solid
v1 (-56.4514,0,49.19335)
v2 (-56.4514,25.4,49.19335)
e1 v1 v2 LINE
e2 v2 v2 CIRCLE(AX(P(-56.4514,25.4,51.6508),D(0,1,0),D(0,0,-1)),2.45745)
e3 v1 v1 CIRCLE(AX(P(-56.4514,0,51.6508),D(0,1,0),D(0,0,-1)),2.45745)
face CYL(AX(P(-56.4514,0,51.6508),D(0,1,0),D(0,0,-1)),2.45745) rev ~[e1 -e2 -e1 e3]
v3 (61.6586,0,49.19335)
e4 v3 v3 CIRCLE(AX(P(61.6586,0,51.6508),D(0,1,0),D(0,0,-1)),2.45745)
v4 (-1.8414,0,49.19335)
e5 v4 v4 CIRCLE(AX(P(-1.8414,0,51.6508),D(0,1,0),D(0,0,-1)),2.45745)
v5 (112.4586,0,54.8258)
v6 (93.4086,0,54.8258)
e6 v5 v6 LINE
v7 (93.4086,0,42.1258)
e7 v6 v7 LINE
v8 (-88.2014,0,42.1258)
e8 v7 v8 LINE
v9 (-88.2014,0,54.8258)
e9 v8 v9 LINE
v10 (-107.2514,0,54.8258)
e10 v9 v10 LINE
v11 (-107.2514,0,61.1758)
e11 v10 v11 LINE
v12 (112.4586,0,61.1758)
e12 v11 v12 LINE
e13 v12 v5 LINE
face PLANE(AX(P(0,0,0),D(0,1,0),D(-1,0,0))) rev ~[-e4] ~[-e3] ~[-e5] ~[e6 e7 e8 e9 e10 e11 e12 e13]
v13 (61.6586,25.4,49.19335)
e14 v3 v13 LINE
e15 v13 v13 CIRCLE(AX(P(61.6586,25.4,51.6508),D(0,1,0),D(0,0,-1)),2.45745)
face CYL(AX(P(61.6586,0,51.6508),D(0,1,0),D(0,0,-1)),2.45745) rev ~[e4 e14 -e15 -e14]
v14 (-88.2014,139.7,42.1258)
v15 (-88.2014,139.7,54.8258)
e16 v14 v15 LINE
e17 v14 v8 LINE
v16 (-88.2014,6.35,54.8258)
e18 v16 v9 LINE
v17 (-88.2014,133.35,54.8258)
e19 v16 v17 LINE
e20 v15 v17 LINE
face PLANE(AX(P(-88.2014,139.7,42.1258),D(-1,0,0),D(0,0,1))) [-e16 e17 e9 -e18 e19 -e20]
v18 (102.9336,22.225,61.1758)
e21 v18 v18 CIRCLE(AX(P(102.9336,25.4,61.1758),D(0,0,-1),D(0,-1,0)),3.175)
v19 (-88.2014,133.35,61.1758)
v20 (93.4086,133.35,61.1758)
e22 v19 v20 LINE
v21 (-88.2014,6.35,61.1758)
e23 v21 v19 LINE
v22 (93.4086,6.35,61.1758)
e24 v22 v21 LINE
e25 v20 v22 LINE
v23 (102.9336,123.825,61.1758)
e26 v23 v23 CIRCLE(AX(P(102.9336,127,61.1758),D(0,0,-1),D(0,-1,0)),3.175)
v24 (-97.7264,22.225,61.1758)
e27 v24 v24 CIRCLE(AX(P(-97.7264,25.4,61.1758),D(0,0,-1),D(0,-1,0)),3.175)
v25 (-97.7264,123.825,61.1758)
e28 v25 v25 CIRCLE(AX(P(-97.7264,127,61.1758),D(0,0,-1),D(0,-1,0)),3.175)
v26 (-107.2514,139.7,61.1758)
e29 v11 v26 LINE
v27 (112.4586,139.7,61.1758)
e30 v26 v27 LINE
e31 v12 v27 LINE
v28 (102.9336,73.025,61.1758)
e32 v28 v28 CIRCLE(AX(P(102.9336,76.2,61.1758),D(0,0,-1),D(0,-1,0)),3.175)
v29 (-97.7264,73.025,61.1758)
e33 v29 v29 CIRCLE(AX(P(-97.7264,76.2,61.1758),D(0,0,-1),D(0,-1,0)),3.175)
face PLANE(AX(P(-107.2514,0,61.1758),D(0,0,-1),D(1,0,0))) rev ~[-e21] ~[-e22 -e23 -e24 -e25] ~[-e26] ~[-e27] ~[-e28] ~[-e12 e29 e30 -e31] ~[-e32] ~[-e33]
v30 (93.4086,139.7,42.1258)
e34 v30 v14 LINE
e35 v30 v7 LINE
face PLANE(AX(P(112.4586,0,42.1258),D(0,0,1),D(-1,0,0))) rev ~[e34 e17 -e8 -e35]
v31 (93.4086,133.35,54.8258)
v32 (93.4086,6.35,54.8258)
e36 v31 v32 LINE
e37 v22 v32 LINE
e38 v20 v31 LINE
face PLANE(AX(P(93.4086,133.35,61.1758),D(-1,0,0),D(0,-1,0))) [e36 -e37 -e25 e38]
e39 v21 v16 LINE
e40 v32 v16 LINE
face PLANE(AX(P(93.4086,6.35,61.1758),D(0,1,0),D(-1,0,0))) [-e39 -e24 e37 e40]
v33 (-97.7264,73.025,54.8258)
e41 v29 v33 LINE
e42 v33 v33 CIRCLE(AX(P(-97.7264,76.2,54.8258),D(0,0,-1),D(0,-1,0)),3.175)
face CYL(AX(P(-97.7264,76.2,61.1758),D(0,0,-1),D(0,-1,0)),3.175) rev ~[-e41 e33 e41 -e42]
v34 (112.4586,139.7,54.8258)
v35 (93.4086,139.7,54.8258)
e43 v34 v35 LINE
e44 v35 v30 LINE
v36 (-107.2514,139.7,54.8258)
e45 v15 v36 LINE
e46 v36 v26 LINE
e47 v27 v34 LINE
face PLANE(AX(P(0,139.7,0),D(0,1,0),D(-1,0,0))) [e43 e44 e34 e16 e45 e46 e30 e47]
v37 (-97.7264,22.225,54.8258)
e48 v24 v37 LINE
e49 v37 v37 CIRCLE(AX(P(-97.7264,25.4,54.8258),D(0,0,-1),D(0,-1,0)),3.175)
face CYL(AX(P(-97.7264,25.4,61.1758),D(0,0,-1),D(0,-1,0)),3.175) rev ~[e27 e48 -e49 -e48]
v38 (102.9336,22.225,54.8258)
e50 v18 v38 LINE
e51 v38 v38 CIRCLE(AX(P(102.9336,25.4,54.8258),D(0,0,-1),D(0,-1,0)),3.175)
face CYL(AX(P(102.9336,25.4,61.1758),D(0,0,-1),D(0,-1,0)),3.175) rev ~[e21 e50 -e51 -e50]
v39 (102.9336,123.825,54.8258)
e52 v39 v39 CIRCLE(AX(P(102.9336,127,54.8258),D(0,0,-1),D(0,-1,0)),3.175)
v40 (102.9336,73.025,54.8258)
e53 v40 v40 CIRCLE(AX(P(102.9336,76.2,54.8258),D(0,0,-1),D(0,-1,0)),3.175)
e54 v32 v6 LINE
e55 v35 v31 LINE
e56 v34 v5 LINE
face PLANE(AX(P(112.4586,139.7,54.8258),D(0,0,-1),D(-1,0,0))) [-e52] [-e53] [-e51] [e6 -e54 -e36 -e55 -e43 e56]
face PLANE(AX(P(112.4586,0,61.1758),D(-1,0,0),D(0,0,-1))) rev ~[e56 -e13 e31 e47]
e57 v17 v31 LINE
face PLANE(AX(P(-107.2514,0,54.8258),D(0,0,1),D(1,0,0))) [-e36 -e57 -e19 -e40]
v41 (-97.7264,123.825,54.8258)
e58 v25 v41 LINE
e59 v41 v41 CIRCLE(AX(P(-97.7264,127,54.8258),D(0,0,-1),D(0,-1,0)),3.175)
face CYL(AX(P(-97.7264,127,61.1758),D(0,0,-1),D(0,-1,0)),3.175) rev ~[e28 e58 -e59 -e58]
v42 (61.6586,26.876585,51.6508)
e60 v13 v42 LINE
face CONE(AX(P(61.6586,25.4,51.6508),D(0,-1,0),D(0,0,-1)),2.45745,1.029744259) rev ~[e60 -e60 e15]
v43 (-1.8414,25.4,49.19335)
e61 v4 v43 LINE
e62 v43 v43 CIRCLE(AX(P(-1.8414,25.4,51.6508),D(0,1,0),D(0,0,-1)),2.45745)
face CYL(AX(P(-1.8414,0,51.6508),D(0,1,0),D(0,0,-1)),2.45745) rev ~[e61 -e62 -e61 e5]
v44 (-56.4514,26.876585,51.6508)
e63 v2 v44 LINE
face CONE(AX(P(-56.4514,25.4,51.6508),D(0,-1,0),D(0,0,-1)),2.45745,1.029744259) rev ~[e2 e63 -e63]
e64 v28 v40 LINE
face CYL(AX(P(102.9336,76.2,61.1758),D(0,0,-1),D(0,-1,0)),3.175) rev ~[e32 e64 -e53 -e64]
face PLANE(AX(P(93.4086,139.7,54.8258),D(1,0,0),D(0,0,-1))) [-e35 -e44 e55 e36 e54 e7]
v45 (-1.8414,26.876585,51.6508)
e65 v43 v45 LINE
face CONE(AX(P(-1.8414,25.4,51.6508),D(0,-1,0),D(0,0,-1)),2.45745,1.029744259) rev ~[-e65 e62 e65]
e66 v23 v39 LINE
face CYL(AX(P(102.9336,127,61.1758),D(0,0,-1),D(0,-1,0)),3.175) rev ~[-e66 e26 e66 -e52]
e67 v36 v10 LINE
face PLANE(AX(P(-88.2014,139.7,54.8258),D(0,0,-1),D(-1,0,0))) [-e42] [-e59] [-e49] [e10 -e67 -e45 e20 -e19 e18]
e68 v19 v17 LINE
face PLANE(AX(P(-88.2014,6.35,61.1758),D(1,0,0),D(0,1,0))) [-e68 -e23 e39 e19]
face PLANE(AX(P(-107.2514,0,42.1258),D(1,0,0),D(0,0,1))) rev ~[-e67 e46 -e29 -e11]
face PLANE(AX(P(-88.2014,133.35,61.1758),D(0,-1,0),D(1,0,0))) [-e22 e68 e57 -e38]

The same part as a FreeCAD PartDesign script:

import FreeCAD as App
import Part
import Sketcher
Q = App.Units.Quantity


def add_polygon(sketch, points):
    """Adds a closed chain of lines whose ends are joined by coincident constraints."""
    first, n = sketch.GeometryCount, len(points)
    for a, b in zip(points, points[1:] + points[:1]):
        sketch.addGeometry(Part.LineSegment(App.Vector(*a, 0), App.Vector(*b, 0)), False)
    for i in range(n):
        sketch.addConstraint(Sketcher.Constraint("Coincident", first + i, 2, first + (i + 1) % n, 1))

doc = App.newDocument("Part")
body = doc.addObject("PartDesign::Body", "Body")

# Sketch on XZ plane
sketch1 = body.newObject("Sketcher::SketchObject", "Sketch")
sketch1.AttachmentSupport = (doc.getObject("XZ_Plane"), [""])
sketch1.MapMode = "FlatFace"
add_polygon(sketch1, [(-107, 42), (-107, 61), (112, 61), (112, 42)])  # lines 0-3
sketch1.addConstraint(Sketcher.Constraint("Vertical", 0))
sketch1.addConstraint(Sketcher.Constraint("Horizontal", 1))
sketch1.addConstraint(Sketcher.Constraint("Vertical", 2))
sketch1.addConstraint(Sketcher.Constraint("Horizontal", 3))
sketch1.addConstraint(Sketcher.Constraint("DistanceX", 1, 1, 1, 2, Q("8.65 in")))
sketch1.addConstraint(Sketcher.Constraint("DistanceY", 0, 1, 0, 2, Q("0.75 in")))
sketch1.addConstraint(Sketcher.Constraint("DistanceX", 0, 2, -1, 1, Q("4.2225 in")))
sketch1.addConstraint(Sketcher.Constraint("DistanceY", -1, 1, 0, 2, Q("2.4085 in")))
pad1 = body.newObject("PartDesign::Pad", "Pad")
pad1.Profile = sketch1
pad1.Length = Q("5.5 in")
pad1.Reversed = True

# Sketch on XY plane
sketch2 = body.newObject("Sketcher::SketchObject", "Sketch001")
sketch2.AttachmentSupport = (doc.getObject("XY_Plane"), [""])
sketch2.MapMode = "FlatFace"
sketch2.AttachmentOffset = App.Placement(App.Vector(0, 0, 2.4084961 * 25.4), App.Rotation())
sketch2.addGeometry(Part.Circle(App.Vector(-97.7, 76.2, 0), App.Vector(0, 0, 1), 3.2), False)
sketch2.addGeometry(Part.Circle(App.Vector(-97.7, 25.4, 0), App.Vector(0, 0, 1), 3.2), False)
sketch2.addGeometry(Part.Circle(App.Vector(102.9, 25.4, 0), App.Vector(0, 0, 1), 3.2), False)
sketch2.addGeometry(Part.Circle(App.Vector(102.9, 76.2, 0), App.Vector(0, 0, 1), 3.2), False)
sketch2.addConstraint(Sketcher.Constraint("Equal", 0, 1))
sketch2.addConstraint(Sketcher.Constraint("Equal", 1, 2))
sketch2.addConstraint(Sketcher.Constraint("Equal", 2, 3))
sketch2.addConstraint(Sketcher.Constraint("Horizontal", 1, 3, 2, 3))
sketch2.addConstraint(Sketcher.Constraint("Horizontal", 0, 3, 3, 3))
sketch2.addConstraint(Sketcher.Constraint("Vertical", 0, 3, 1, 3))
sketch2.addConstraint(Sketcher.Constraint("Vertical", 2, 3, 3, 3))
sketch2.addConstraint(Sketcher.Constraint("Diameter", 0, Q("0.25 in")))
sketch2.addConstraint(Sketcher.Constraint("DistanceY", -1, 1, 0, 3, Q("3 in")))
sketch2.addConstraint(Sketcher.Constraint("DistanceY", -1, 1, 1, 3, Q("1 in")))
sketch2.addConstraint(Sketcher.Constraint("DistanceX", 1, 3, 2, 3, Q("7.9 in")))
sketch2.addConstraint(Sketcher.Constraint("DistanceX", 0, 3, -1, 1, Q("3.8475 in")))
doc.recompute()
hole = body.newObject("PartDesign::Hole", "Hole")
hole.Profile = sketch2
hole.ThreadType = "None"
hole.Diameter = Q("0.25 in")
hole.DepthType = "ThroughAll"

# Sketch on XY plane
sketch3 = body.newObject("Sketcher::SketchObject", "Sketch002")
sketch3.AttachmentSupport = (doc.getObject("XY_Plane"), [""])
sketch3.MapMode = "FlatFace"
sketch3.AttachmentOffset = App.Placement(App.Vector(0, 0, 2.4084961 * 25.4), App.Rotation())
add_polygon(sketch3, [(93, 133), (-88, 133), (-88, 6), (93, 6)])  # lines 0-3
sketch3.addConstraint(Sketcher.Constraint("Horizontal", 0))
sketch3.addConstraint(Sketcher.Constraint("Vertical", 1))
sketch3.addConstraint(Sketcher.Constraint("Horizontal", 2))
sketch3.addConstraint(Sketcher.Constraint("Vertical", 3))
sketch3.addConstraint(Sketcher.Constraint("DistanceY", 1, 2, 1, 1, Q("5 in")))
sketch3.addConstraint(Sketcher.Constraint("DistanceY", -1, 1, 1, 2, Q("0.25 in")))
sketch3.addConstraint(Sketcher.Constraint("DistanceX", 0, 2, 0, 1, Q("7.15 in")))
sketch3.addConstraint(Sketcher.Constraint("DistanceX", 0, 2, -1, 1, Q("3.4725 in")))
pocket1 = body.newObject("PartDesign::Pocket", "Pocket")
pocket1.Profile = sketch3
pocket1.Length = Q("0.25 in")

# Sketch on XZ plane
sketch4 = body.newObject("Sketcher::SketchObject", "Sketch003")
sketch4.AttachmentSupport = (doc.getObject("XZ_Plane"), [""])
sketch4.MapMode = "FlatFace"
sketch4.AttachmentOffset = App.Placement(App.Vector(0, 0, -5.5 * 25.4), App.Rotation())
add_polygon(sketch4, [(-107, 55), (-88, 55), (-88, 42), (-107, 42)])  # lines 0-3
add_polygon(sketch4, [(112, 42), (93, 42), (93, 55), (112, 55)])  # lines 4-7
sketch4.addConstraint(Sketcher.Constraint("Horizontal", 0))
sketch4.addConstraint(Sketcher.Constraint("Vertical", 1))
sketch4.addConstraint(Sketcher.Constraint("Horizontal", 2))
sketch4.addConstraint(Sketcher.Constraint("Vertical", 3))
sketch4.addConstraint(Sketcher.Constraint("Horizontal", 4))
sketch4.addConstraint(Sketcher.Constraint("Vertical", 5))
sketch4.addConstraint(Sketcher.Constraint("Horizontal", 6))
sketch4.addConstraint(Sketcher.Constraint("Vertical", 7))
sketch4.addConstraint(Sketcher.Constraint("Horizontal", 2, 2, 4, 2))
sketch4.addConstraint(Sketcher.Constraint("Horizontal", 3, 2, 5, 2))
sketch4.addConstraint(Sketcher.Constraint("Equal", 2, 4))
sketch4.addConstraint(Sketcher.Constraint("DistanceY", 1, 2, 1, 1, Q("0.5 in")))
sketch4.addConstraint(Sketcher.Constraint("DistanceX", 0, 1, 0, 2, Q("0.75 in")))
sketch4.addConstraint(Sketcher.Constraint("DistanceX", 2, 2, 4, 2, Q("7.9 in")))
sketch4.addConstraint(Sketcher.Constraint("DistanceX", 0, 2, -1, 1, Q("3.4725 in")))
sketch4.addConstraint(Sketcher.Constraint("DistanceY", -1, 1, 0, 2, Q("2.1585 in")))
pocket2 = body.newObject("PartDesign::Pocket", "Pocket001")
pocket2.Profile = sketch4
pocket2.Length = Q("10 in")
pocket2.Reversed = True

# Sketch on XZ plane
sketch5 = body.newObject("Sketcher::SketchObject", "Sketch004")
sketch5.AttachmentSupport = (doc.getObject("XZ_Plane"), [""])
sketch5.MapMode = "FlatFace"
sketch5.addGeometry(Part.Circle(App.Vector(61.7, 51.7, 0), App.Vector(0, 0, 1), 2.5), False)
sketch5.addGeometry(Part.Circle(App.Vector(-56.5, 51.7, 0), App.Vector(0, 0, 1), 2.5), False)
sketch5.addConstraint(Sketcher.Constraint("Equal", 0, 1))
sketch5.addConstraint(Sketcher.Constraint("Horizontal", 0, 3, 1, 3))
sketch5.addConstraint(Sketcher.Constraint("Diameter", 0, Q("0.1935 in")))
sketch5.addConstraint(Sketcher.Constraint("DistanceX", 1, 3, 0, 3, Q("4.65 in")))
sketch5.addConstraint(Sketcher.Constraint("DistanceX", -1, 1, 0, 3, Q("2.4275 in")))
sketch5.addConstraint(Sketcher.Constraint("DistanceY", -1, 1, 0, 3, Q("2.0335 in")))
doc.recompute()
hole2 = body.newObject("PartDesign::Hole", "Hole001")
hole2.Profile = sketch5
hole2.ThreadType = "None"
hole2.Diameter = Q("0.1935 in")
hole2.DepthType = "Dimension"
hole2.Depth = Q("1 in")
hole2.DrillPoint = "Angled"
hole2.DrillPointAngle = 118

# Sketch on XZ plane
sketch6 = body.newObject("Sketcher::SketchObject", "Sketch005")
sketch6.AttachmentSupport = (doc.getObject("XZ_Plane"), [""])
sketch6.MapMode = "FlatFace"
sketch6.addGeometry(Part.Circle(App.Vector(-1.8, 51.7, 0), App.Vector(0, 0, 1), 2.5), False)
sketch6.addConstraint(Sketcher.Constraint("Diameter", 0, Q("0.1935 in")))
sketch6.addConstraint(Sketcher.Constraint("DistanceX", 0, 3, -1, 1, Q("0.0725 in")))
sketch6.addConstraint(Sketcher.Constraint("DistanceY", -1, 1, 0, 3, Q("2.0335 in")))
doc.recompute()
hole3 = body.newObject("PartDesign::Hole", "Hole002")
hole3.Profile = sketch6
hole3.ThreadType = "None"
hole3.Diameter = Q("0.1935 in")
hole3.DepthType = "Dimension"
hole3.Depth = Q("1 in")
hole3.DrillPoint = "Angled"
hole3.DrillPointAngle = 118

# Sketch on XY plane
sketch7 = body.newObject("Sketcher::SketchObject", "Sketch006")
sketch7.AttachmentSupport = (doc.getObject("XY_Plane"), [""])
sketch7.MapMode = "FlatFace"
sketch7.AttachmentOffset = App.Placement(App.Vector(0, 0, 2.4084961 * 25.4), App.Rotation())
sketch7.addGeometry(Part.Circle(App.Vector(-97.7, 127, 0), App.Vector(0, 0, 1), 3.2), False)
sketch7.addGeometry(Part.Circle(App.Vector(102.9, 127, 0), App.Vector(0, 0, 1), 3.2), False)
sketch7.addConstraint(Sketcher.Constraint("Equal", 0, 1))
sketch7.addConstraint(Sketcher.Constraint("Horizontal", 0, 3, 1, 3))
sketch7.addConstraint(Sketcher.Constraint("Diameter", 0, Q("0.25 in")))
sketch7.addConstraint(Sketcher.Constraint("DistanceY", -1, 1, 0, 3, Q("5 in")))
sketch7.addConstraint(Sketcher.Constraint("DistanceX", 0, 3, 1, 3, Q("7.9 in")))
sketch7.addConstraint(Sketcher.Constraint("DistanceX", 0, 3, -1, 1, Q("3.8475 in")))
doc.recompute()
hole4 = body.newObject("PartDesign::Hole", "Hole003")
hole4.Profile = sketch7
hole4.ThreadType = "None"
hole4.Diameter = Q("0.25 in")
hole4.DepthType = "Dimension"
hole4.Depth = Q("1 in")
hole4.DrillPoint = "Angled"
hole4.DrillPointAngle = 118

doc.recompute()
